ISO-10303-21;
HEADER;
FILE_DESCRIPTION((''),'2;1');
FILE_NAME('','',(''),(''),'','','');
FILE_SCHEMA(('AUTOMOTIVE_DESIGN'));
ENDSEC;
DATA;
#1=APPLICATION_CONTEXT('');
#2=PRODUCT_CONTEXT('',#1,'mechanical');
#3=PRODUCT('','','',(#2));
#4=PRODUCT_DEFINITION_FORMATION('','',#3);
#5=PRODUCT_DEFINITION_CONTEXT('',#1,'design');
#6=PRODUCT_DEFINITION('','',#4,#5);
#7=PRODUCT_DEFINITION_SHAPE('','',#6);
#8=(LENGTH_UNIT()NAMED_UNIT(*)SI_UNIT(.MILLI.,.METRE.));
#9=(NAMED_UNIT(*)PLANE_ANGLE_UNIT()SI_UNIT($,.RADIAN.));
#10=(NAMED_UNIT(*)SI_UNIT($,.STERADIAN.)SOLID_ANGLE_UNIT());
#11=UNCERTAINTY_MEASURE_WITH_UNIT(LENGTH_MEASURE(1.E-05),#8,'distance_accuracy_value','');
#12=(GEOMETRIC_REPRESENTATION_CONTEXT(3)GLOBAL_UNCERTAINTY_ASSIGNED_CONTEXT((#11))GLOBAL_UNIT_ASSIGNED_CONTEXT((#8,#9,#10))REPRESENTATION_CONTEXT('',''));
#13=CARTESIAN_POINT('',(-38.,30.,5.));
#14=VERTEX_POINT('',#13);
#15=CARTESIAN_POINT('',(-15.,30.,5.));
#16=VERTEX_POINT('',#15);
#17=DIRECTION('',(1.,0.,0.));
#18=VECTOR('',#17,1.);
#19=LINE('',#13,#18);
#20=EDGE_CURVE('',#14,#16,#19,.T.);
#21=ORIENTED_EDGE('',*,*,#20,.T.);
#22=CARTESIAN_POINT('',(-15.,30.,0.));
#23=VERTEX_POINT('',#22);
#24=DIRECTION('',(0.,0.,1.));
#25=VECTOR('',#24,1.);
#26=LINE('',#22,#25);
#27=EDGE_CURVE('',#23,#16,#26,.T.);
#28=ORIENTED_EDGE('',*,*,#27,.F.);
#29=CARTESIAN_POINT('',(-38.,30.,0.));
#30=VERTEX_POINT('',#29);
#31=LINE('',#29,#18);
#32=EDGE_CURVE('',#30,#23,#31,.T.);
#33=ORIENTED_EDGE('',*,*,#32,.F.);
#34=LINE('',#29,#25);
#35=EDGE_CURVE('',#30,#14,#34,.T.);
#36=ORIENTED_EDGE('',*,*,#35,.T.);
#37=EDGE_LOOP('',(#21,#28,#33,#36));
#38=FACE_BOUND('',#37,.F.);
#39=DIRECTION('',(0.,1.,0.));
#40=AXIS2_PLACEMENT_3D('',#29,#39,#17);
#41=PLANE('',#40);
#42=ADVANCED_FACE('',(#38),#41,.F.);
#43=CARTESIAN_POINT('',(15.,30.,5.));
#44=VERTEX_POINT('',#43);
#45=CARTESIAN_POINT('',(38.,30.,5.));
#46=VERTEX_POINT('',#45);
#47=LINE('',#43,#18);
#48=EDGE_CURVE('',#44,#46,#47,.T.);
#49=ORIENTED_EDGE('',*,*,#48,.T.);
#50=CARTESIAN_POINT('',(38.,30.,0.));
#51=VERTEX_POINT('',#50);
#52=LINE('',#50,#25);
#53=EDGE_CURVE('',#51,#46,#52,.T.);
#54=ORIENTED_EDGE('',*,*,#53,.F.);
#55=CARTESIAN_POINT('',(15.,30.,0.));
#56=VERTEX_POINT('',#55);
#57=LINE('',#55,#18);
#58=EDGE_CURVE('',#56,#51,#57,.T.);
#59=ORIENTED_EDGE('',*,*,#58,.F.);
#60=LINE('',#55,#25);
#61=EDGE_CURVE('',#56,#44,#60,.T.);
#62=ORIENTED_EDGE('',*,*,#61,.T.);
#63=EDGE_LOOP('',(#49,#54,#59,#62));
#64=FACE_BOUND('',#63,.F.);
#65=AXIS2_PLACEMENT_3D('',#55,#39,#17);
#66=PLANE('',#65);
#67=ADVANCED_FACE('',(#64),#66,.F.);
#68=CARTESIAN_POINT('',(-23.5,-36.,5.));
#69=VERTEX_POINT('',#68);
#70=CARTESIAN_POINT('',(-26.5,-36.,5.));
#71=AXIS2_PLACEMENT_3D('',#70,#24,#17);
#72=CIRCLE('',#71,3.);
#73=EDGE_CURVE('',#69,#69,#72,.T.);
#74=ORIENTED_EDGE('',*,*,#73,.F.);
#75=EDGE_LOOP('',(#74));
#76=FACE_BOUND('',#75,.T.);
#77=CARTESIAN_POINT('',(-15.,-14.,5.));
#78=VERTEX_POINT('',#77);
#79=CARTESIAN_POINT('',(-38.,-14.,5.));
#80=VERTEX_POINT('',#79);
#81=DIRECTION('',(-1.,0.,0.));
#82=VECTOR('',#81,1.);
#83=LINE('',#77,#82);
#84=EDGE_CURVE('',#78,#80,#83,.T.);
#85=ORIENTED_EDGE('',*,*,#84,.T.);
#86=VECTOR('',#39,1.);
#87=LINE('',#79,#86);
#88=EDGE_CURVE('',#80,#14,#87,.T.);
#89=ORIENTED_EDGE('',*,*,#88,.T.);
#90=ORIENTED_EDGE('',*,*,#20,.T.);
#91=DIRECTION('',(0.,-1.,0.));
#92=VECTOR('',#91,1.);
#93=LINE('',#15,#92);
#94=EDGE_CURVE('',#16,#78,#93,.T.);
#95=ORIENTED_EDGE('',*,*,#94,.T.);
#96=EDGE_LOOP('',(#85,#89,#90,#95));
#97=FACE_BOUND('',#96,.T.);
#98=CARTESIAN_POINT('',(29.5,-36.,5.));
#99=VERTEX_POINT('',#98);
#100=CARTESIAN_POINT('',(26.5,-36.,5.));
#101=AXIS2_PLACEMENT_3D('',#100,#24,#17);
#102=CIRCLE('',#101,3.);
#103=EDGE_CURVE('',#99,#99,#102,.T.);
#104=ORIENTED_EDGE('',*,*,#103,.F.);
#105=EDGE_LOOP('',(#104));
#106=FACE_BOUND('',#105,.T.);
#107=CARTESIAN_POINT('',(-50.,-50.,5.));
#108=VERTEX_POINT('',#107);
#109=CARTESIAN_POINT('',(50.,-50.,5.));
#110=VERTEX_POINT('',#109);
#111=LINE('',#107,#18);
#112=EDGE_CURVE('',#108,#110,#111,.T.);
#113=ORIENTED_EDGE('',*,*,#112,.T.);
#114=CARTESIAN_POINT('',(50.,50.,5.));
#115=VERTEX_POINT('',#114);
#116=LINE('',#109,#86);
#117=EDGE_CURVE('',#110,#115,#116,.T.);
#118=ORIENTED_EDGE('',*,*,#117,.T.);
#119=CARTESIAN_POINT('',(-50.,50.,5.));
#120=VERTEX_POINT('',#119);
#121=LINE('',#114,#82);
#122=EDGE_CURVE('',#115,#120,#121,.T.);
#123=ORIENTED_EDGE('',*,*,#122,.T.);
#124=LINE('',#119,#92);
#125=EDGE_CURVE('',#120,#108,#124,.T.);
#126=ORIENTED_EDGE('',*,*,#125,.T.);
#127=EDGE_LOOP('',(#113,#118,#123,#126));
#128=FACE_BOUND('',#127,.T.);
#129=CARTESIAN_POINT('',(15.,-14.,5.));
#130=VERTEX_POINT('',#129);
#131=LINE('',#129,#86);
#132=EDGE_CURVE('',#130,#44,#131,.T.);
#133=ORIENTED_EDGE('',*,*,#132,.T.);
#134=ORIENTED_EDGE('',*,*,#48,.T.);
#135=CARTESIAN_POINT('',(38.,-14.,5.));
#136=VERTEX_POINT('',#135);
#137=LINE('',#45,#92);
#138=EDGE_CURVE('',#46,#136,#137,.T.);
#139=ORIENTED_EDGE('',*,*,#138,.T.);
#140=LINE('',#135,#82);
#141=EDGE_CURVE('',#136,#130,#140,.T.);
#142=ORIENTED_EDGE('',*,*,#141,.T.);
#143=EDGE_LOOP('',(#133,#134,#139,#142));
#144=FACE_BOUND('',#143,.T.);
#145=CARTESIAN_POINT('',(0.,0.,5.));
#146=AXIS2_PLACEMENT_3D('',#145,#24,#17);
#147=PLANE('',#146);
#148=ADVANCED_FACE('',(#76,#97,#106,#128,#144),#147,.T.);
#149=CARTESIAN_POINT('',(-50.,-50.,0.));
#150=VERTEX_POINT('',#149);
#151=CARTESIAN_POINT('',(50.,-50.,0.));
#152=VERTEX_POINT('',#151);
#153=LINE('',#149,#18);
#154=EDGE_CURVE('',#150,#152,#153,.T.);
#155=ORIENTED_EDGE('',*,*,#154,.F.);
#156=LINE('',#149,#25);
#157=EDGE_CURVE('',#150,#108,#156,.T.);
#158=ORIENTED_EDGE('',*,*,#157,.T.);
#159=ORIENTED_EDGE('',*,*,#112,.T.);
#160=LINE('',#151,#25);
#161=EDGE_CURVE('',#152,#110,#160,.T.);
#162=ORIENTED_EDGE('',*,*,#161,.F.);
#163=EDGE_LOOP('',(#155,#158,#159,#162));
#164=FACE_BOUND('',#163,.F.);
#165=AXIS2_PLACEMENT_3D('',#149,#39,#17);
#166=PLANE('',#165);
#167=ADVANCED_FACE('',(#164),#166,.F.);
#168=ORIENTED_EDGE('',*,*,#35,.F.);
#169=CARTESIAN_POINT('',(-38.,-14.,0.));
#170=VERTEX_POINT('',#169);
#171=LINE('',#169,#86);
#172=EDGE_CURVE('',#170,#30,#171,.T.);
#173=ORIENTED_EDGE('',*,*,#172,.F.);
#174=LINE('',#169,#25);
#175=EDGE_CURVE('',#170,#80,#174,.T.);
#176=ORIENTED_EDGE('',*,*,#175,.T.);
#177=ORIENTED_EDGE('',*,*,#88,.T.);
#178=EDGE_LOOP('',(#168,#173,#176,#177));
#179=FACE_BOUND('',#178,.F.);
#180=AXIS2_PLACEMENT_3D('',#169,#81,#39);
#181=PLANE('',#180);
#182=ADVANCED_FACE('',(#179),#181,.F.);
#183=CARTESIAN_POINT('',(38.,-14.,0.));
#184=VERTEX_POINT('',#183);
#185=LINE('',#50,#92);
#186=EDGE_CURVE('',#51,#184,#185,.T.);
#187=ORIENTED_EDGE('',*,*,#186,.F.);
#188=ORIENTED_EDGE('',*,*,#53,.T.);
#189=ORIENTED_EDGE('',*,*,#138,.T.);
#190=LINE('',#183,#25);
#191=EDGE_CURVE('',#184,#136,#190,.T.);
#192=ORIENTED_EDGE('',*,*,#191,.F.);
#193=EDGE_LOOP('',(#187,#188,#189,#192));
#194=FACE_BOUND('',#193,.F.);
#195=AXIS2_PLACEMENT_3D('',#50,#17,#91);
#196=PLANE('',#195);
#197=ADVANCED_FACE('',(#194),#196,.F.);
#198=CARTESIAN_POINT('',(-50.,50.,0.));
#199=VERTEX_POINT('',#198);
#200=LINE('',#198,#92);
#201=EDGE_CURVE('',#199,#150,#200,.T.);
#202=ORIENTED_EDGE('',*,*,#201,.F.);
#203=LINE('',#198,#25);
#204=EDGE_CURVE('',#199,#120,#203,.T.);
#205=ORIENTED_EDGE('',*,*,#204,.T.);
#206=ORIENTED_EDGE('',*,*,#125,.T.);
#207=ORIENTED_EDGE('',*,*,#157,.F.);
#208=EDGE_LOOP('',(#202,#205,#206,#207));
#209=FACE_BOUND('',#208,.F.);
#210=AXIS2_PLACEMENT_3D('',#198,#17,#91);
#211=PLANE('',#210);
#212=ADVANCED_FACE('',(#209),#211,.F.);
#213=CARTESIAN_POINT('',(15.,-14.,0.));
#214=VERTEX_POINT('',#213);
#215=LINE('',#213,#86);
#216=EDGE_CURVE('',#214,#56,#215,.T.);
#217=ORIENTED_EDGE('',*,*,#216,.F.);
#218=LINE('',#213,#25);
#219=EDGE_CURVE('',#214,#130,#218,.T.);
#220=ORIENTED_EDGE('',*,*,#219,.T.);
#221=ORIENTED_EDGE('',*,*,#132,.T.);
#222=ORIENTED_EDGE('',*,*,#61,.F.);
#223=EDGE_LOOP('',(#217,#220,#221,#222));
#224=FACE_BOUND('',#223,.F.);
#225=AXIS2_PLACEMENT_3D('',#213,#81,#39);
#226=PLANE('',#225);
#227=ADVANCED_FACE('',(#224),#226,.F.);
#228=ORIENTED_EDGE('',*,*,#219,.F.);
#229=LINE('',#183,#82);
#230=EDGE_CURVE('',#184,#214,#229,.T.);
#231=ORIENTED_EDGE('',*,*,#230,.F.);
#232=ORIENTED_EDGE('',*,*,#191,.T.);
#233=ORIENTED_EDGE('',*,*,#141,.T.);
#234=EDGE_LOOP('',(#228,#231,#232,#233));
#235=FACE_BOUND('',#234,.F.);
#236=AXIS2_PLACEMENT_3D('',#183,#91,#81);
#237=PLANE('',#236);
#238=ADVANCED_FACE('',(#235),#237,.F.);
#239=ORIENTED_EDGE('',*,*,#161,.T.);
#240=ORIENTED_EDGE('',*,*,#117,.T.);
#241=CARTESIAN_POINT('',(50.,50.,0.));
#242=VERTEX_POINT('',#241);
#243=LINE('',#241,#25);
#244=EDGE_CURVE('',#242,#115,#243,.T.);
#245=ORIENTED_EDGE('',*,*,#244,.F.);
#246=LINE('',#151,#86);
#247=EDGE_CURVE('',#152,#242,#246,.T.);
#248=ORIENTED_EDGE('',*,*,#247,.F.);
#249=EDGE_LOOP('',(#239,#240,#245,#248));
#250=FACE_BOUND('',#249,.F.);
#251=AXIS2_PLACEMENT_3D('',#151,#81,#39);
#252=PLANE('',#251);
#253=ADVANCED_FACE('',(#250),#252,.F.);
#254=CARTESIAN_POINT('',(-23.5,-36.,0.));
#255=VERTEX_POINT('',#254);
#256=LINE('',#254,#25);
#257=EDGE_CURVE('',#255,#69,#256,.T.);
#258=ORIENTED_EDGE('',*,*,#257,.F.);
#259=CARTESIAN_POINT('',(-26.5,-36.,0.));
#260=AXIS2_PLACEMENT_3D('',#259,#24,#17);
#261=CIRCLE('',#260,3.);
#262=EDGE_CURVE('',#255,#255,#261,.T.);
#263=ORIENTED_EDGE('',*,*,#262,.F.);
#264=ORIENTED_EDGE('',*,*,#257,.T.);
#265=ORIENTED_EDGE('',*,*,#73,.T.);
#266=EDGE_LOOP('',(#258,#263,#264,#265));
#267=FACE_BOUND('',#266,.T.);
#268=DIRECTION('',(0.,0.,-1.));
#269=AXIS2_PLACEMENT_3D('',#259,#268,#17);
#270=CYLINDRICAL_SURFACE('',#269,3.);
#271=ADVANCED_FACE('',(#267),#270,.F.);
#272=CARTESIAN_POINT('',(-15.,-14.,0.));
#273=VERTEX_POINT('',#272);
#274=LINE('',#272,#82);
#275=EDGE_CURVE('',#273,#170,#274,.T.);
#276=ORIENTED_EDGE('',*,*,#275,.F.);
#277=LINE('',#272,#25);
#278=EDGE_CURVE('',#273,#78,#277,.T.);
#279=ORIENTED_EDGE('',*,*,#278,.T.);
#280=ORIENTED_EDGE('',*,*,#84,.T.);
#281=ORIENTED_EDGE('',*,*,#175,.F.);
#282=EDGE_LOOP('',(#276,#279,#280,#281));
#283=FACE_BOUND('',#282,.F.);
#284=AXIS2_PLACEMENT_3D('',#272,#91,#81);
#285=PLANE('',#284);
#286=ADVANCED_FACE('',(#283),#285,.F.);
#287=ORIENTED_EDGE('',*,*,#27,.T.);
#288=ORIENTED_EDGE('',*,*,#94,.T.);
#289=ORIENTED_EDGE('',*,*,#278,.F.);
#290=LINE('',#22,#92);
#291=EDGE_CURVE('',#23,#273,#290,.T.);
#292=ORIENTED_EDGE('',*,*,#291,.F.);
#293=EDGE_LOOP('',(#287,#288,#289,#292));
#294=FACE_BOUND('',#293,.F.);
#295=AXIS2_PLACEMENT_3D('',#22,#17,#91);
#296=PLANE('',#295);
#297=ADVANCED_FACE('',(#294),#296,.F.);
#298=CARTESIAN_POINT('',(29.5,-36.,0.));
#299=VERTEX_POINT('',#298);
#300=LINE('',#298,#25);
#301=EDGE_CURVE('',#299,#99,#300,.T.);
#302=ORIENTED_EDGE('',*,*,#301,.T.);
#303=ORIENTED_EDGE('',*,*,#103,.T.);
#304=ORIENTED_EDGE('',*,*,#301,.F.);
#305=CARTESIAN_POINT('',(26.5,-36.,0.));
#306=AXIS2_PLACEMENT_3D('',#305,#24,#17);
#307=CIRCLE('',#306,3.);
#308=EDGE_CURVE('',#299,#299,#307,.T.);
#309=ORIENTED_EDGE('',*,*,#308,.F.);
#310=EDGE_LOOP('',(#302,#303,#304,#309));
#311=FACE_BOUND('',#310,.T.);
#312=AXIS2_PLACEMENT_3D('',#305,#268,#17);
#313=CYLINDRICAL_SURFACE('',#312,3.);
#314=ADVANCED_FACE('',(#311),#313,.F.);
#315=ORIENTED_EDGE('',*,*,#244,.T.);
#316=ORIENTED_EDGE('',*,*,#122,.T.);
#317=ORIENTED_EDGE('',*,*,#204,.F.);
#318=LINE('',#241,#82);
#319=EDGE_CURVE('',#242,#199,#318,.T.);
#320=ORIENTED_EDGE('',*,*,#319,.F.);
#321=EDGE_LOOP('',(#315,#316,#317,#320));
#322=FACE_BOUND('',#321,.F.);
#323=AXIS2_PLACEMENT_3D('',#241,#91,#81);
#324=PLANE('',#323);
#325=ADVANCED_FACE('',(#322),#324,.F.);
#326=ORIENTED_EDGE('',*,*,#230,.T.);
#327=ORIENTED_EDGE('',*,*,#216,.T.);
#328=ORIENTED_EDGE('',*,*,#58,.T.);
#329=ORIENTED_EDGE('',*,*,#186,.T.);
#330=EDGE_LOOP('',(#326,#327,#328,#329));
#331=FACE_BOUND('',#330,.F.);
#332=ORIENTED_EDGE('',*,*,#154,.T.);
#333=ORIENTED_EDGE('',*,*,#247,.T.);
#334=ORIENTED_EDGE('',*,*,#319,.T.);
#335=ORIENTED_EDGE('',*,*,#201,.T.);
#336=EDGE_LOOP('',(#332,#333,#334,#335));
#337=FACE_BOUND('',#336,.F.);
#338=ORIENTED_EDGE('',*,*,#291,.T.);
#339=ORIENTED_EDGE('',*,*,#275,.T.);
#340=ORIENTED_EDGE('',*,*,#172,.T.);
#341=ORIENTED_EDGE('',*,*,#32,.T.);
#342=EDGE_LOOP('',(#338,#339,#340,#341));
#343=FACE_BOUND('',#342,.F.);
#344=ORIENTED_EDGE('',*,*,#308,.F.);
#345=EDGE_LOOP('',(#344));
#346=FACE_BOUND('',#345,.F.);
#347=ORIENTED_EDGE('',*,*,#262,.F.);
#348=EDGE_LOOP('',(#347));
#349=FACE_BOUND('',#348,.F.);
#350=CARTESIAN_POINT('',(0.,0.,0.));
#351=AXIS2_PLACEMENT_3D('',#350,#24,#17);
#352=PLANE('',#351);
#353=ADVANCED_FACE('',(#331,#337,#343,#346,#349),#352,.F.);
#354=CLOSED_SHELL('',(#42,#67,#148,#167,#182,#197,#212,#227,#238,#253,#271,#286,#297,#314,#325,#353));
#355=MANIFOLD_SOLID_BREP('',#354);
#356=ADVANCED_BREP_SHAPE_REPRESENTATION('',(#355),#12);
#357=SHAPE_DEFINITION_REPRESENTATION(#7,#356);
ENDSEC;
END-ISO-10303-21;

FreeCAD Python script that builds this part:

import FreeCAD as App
import Part
import Sketcher
from FreeCAD import Vector


def add_polygon(sketch, points):
    """Adds a closed chain of lines whose ends are joined by coincident constraints."""
    first, n = sketch.GeometryCount, len(points)
    for a, b in zip(points, points[1:] + points[:1]):
        sketch.addGeometry(Part.LineSegment(App.Vector(*a, 0), App.Vector(*b, 0)), False)
    for i in range(n):
        sketch.addConstraint(Sketcher.Constraint("Coincident", first + i, 2, first + (i + 1) % n, 1))

doc = App.newDocument("Part")
params = doc.addObject("Spreadsheet::Sheet", "Params")
for row, (alias, value) in enumerate([
    ("sketch1_diameter", "6 mm"),
    ("sketch1_width", "100 mm"),
    ("sketch1_width2", "23 mm"),
    ("sketch1_height", "44 mm"),
    ("pad1_length", "5 mm"),
], start=1):
    params.set(f"A{row}", alias)
    params.set(f"B{row}", "=" + value)
    params.setAlias(f"B{row}", alias)

body = doc.addObject("PartDesign::Body", "Body")

# Sketch on XY plane
sketch1 = body.newObject("Sketcher::SketchObject", "Sketch")
sketch1.AttachmentSupport = (doc.getObject("XY_Plane"), [""])
sketch1.MapMode = "FlatFace"
add_polygon(sketch1, [(-50, 50), (-50, -50), (50, -50), (50, 50)])  # lines 0-3
sketch1.addGeometry(Part.Circle(Vector(-26.5, -36, 0), Vector(0, 0, 1), 3), False)  # 4
sketch1.addGeometry(Part.Circle(Vector(26.5, -36, 0), Vector(0, 0, 1), 3), False)  # 5
add_polygon(sketch1, [(-38, -14), (-38, 30), (-15, 30), (-15, -14)])  # lines 6-9
add_polygon(sketch1, [(15, -14), (15, 30), (38, 30), (38, -14)])  # lines 10-13
sketch1.addConstraint([
    Sketcher.Constraint("Vertical", 0),
    Sketcher.Constraint("Horizontal", 1),
    Sketcher.Constraint("Vertical", 2),
    Sketcher.Constraint("Horizontal", 3),
    Sketcher.Constraint("Vertical", 6),
    Sketcher.Constraint("Horizontal", 7),
    Sketcher.Constraint("Vertical", 8),
    Sketcher.Constraint("Horizontal", 9),
    Sketcher.Constraint("Vertical", 10),
    Sketcher.Constraint("Horizontal", 11),
    Sketcher.Constraint("Vertical", 12),
    Sketcher.Constraint("Horizontal", 13),
    Sketcher.Constraint("Equal", 4, 5),
    Sketcher.Constraint("Symmetric", 0, 2, 2, 2, -1, 1),
    Sketcher.Constraint("Symmetric", 4, 3, 5, 3, -2),
    Sketcher.Constraint("Symmetric", 7, 2, 10, 2, -2),
    Sketcher.Constraint("Symmetric", 9, 2, 12, 2, -2),
    Sketcher.Constraint("Equal", 3, 0),
    Sketcher.Constraint("Diameter", 4, 6.0),
    Sketcher.Constraint("DistanceX", 1, 1, 1, 2, 100.0),
    Sketcher.Constraint("DistanceX", 7, 1, 7, 2, 23.0),
    Sketcher.Constraint("DistanceY", 6, 1, 6, 2, 44.0),
    Sketcher.Constraint("DistanceY", 8, 2, -1, 1, 14.0),
    Sketcher.Constraint("DistanceX", 4, 3, 5, 3, 53.0),
    Sketcher.Constraint("DistanceY", 0, 2, 4, 3, 14.0),
    Sketcher.Constraint("DistanceX", 6, 2, 10, 2, 53.0),
])
sketch1.setExpression("Constraints[30]", "Params.sketch1_diameter")
sketch1.setExpression("Constraints[31]", "Params.sketch1_width")
sketch1.setExpression("Constraints[32]", "Params.sketch1_width2")
sketch1.setExpression("Constraints[33]", "Params.sketch1_height")
pad1 = body.newObject("PartDesign::Pad", "Pad")
pad1.Profile = sketch1
pad1.setExpression("Length", "Params.pad1_length")

doc.recompute()
